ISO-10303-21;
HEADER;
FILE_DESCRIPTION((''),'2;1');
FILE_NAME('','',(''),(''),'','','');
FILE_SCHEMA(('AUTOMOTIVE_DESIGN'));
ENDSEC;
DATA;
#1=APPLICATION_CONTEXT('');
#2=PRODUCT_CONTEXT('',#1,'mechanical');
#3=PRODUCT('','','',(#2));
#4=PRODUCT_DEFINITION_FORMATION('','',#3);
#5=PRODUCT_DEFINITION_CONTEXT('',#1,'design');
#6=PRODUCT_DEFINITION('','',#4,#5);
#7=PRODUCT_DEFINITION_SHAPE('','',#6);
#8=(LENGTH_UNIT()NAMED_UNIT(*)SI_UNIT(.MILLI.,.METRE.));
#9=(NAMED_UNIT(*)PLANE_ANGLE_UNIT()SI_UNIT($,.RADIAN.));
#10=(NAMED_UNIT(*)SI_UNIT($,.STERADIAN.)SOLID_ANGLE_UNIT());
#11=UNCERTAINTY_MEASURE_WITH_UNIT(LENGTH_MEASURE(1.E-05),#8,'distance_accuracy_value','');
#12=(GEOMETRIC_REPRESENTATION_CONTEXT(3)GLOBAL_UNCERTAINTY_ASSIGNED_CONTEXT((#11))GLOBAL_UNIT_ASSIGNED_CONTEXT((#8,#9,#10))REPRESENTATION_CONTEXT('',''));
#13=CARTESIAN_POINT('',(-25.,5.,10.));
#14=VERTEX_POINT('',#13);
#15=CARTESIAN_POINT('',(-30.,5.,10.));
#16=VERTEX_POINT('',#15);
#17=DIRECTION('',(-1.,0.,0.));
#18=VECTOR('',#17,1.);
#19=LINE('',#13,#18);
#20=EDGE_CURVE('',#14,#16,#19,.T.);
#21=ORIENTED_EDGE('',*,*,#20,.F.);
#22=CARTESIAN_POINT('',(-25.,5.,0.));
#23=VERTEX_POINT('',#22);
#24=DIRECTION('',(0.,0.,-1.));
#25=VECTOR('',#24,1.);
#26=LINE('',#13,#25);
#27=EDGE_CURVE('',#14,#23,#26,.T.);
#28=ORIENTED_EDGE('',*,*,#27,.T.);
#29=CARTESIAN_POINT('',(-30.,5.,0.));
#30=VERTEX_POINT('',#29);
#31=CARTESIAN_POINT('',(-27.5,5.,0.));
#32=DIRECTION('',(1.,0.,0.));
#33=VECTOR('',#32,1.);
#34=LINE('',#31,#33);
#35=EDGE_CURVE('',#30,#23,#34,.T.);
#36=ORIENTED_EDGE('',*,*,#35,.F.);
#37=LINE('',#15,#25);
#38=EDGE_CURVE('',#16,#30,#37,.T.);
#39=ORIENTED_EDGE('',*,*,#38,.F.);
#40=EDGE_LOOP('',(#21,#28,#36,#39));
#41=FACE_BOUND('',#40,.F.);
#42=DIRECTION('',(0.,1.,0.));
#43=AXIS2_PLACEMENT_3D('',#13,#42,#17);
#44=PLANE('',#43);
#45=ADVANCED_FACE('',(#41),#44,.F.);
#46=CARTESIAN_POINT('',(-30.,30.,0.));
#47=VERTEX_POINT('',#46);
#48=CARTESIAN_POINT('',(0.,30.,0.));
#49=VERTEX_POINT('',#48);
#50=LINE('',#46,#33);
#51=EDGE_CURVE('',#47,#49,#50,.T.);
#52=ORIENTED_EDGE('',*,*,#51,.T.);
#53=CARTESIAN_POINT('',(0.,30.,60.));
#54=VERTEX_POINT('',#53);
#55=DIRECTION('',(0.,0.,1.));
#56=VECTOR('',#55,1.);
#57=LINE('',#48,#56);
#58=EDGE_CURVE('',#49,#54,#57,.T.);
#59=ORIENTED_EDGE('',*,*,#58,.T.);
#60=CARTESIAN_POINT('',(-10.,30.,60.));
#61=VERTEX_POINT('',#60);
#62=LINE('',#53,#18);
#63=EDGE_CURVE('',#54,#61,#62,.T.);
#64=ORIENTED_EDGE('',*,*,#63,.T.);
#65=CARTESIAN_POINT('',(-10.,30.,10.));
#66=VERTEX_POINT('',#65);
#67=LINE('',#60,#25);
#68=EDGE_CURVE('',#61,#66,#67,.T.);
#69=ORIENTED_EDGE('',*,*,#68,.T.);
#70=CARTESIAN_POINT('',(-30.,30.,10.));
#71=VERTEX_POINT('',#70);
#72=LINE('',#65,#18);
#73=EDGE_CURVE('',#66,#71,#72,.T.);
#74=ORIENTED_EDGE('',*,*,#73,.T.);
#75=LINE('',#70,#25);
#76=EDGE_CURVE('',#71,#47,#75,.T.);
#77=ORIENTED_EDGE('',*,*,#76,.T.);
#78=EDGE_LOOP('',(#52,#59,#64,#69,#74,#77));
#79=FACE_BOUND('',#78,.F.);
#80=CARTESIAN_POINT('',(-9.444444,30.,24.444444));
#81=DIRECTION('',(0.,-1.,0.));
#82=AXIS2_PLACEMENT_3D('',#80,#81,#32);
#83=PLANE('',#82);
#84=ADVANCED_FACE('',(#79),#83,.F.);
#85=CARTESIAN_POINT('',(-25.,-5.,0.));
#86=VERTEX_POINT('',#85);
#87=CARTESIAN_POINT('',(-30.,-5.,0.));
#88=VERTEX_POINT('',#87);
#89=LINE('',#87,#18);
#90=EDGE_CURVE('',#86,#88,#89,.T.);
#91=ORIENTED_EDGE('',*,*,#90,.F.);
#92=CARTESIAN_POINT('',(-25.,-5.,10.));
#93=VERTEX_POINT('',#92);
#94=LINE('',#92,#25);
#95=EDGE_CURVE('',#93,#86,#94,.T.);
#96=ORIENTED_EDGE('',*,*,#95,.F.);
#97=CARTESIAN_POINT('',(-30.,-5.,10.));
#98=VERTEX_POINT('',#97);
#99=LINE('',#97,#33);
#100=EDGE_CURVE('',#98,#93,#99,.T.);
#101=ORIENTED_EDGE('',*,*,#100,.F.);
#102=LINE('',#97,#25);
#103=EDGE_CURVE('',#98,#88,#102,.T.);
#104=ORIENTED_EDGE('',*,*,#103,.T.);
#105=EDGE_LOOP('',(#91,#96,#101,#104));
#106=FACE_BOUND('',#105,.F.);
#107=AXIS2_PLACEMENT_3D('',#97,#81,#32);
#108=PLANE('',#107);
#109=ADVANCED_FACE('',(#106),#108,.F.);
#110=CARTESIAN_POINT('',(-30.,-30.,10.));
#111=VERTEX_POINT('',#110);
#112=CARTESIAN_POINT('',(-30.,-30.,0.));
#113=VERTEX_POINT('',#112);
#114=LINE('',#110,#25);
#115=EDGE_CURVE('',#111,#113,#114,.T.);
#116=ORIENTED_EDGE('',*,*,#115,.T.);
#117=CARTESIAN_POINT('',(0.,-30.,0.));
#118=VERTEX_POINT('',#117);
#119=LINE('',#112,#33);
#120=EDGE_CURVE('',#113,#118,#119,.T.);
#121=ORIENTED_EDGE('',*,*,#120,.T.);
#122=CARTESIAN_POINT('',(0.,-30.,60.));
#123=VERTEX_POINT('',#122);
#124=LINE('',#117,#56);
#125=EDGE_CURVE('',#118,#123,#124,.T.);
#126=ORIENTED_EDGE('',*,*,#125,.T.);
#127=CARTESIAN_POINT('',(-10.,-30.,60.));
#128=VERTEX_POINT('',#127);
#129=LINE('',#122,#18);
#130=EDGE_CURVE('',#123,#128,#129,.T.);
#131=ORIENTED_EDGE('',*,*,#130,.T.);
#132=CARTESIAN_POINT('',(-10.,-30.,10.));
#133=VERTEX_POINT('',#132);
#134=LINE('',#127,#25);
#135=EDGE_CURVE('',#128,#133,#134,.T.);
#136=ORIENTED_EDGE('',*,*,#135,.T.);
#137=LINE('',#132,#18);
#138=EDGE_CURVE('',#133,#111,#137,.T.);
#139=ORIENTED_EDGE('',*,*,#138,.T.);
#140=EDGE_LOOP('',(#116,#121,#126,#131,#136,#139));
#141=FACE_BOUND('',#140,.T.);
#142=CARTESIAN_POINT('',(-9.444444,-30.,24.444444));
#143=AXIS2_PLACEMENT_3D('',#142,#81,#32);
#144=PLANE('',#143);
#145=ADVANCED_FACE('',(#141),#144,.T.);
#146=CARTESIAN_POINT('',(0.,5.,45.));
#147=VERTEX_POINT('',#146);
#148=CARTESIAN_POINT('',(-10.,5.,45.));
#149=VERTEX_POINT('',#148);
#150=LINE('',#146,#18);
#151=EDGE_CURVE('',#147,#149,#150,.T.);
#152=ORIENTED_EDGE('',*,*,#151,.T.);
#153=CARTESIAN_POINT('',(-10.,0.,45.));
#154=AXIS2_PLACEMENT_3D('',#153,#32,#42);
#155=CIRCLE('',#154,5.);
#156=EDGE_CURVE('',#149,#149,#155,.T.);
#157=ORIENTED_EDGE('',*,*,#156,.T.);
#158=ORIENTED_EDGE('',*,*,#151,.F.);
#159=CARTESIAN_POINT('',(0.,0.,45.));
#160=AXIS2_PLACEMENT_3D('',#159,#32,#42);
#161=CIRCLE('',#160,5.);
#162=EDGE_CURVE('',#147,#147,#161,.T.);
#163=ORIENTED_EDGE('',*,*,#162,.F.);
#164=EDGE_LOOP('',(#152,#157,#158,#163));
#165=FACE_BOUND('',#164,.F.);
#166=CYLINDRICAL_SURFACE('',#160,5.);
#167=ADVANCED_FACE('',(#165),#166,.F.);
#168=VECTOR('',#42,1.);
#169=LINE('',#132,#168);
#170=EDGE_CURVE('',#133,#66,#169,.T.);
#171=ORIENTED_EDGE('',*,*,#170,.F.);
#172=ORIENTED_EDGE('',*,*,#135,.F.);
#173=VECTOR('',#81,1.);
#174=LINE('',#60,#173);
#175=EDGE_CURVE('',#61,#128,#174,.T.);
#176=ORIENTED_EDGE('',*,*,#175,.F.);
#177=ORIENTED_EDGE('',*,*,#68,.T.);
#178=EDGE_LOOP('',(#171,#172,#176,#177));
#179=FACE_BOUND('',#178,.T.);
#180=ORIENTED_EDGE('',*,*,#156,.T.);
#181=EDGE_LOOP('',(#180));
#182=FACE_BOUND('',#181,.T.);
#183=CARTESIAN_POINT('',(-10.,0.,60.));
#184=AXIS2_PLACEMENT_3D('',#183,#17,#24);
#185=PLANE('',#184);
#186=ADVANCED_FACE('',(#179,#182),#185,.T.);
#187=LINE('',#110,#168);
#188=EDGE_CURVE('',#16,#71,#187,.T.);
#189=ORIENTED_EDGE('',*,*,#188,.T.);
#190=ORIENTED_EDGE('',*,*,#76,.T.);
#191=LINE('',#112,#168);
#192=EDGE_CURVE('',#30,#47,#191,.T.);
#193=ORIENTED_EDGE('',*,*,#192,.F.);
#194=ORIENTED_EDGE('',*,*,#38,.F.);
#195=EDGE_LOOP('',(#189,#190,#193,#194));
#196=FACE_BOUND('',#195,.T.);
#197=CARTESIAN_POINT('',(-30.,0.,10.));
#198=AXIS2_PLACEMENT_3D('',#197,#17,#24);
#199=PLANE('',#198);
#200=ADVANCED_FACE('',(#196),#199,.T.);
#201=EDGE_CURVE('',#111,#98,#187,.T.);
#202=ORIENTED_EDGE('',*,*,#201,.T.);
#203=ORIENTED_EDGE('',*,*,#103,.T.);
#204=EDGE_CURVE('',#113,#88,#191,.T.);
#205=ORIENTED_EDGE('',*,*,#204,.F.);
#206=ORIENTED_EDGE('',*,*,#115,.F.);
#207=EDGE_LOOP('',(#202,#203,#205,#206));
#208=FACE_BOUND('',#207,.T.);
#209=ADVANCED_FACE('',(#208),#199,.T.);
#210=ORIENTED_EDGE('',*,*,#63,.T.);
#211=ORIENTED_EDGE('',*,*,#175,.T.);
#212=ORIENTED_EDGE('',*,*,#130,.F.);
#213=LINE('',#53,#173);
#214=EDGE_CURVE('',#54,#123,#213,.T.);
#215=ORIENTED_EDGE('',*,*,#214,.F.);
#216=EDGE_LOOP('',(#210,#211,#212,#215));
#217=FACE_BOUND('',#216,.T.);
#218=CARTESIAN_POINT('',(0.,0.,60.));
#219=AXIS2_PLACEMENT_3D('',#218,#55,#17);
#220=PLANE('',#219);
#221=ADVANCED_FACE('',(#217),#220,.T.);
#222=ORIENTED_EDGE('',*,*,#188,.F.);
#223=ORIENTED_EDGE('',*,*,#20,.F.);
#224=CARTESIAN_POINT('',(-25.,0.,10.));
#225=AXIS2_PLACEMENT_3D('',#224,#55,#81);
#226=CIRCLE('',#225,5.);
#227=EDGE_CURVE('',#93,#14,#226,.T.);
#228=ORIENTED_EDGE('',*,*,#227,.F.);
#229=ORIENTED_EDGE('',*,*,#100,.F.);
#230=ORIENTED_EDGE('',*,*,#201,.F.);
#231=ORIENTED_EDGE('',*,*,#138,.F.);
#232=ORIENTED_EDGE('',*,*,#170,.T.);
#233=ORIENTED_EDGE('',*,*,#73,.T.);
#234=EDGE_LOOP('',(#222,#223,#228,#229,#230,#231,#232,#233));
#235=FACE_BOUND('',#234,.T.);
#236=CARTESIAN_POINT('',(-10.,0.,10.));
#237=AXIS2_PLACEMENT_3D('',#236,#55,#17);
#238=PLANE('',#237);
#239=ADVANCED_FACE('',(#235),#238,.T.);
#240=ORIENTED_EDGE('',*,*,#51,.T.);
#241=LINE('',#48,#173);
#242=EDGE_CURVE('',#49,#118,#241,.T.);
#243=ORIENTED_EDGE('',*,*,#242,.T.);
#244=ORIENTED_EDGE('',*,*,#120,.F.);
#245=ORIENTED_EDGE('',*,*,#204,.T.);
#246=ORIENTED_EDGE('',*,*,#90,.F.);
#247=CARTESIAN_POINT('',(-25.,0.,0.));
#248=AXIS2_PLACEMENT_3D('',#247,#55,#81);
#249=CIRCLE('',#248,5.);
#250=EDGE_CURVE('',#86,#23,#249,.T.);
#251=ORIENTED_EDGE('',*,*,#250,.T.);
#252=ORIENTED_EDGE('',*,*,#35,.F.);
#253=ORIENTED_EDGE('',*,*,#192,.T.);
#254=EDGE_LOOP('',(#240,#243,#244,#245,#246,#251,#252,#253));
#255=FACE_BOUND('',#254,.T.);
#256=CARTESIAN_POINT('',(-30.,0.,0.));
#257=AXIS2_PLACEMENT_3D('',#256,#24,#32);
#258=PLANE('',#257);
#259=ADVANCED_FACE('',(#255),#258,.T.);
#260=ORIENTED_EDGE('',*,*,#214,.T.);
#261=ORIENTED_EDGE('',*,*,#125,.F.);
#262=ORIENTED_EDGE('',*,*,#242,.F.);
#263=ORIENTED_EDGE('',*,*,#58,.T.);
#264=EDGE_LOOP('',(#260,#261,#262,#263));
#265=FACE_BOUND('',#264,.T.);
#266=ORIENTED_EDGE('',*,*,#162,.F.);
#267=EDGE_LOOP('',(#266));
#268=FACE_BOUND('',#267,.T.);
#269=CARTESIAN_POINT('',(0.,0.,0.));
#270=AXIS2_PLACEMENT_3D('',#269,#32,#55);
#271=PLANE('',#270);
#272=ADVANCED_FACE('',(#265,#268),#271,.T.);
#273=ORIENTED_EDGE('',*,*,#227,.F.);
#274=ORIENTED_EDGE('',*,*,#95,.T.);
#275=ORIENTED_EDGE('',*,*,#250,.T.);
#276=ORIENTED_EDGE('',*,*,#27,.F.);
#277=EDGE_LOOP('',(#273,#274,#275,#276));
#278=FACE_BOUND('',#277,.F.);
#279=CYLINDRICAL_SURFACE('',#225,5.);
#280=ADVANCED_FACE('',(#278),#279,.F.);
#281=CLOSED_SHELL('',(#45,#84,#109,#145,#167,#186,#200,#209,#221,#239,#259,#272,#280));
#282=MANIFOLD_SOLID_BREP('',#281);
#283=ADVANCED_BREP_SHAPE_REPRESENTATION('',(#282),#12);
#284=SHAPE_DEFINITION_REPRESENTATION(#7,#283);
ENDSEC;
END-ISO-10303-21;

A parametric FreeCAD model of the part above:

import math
import FreeCAD as App
import Part
import Sketcher
from FreeCAD import Vector

doc = App.newDocument("Part")
body = doc.addObject("PartDesign::Body", "Body")

sketch1 = body.newObject("Sketcher::SketchObject", "Sketch")
sketch1.AttachmentSupport = (doc.getObject("XZ_Plane"), [""])
sketch1.MapMode = "FlatFace"
sketch1.addGeometry(Part.LineSegment(Vector(-30, 0, 0), Vector(0, 0, 0)), False)
sketch1.addGeometry(Part.LineSegment(Vector(0, 0, 0), Vector(0, 60, 0)), False)
sketch1.addGeometry(Part.LineSegment(Vector(0, 60, 0), Vector(-10, 60, 0)), False)
sketch1.addGeometry(Part.LineSegment(Vector(-10, 60, 0), Vector(-10, 10, 0)), False)
sketch1.addGeometry(Part.LineSegment(Vector(-10, 10, 0), Vector(-30, 10, 0)), False)
sketch1.addGeometry(Part.LineSegment(Vector(-30, 10, 0), Vector(-30, 0, 0)), False)
sketch1.addConstraint(Sketcher.Constraint("Coincident", 0, 2, 1, 1))
sketch1.addConstraint(Sketcher.Constraint("Coincident", 1, 2, 2, 1))
sketch1.addConstraint(Sketcher.Constraint("Coincident", 2, 2, 3, 1))
sketch1.addConstraint(Sketcher.Constraint("Coincident", 3, 2, 4, 1))
sketch1.addConstraint(Sketcher.Constraint("Coincident", 4, 2, 5, 1))
sketch1.addConstraint(Sketcher.Constraint("Coincident", 5, 2, 0, 1))
sketch1.addConstraint(Sketcher.Constraint("Horizontal", 0))
sketch1.addConstraint(Sketcher.Constraint("Vertical", 1))
sketch1.addConstraint(Sketcher.Constraint("Horizontal", 2))
sketch1.addConstraint(Sketcher.Constraint("Vertical", 3))
sketch1.addConstraint(Sketcher.Constraint("Horizontal", 4))
sketch1.addConstraint(Sketcher.Constraint("Vertical", 5))
sketch1.addConstraint(Sketcher.Constraint("Coincident", 0, 2, -1, 1))
sketch1.addConstraint(Sketcher.Constraint("Equal", 2, 5))
sketch1.addConstraint(Sketcher.Constraint("DistanceX", 0, 1, 0, 2, 30.0))
sketch1.addConstraint(Sketcher.Constraint("DistanceX", 2, 2, 2, 1, 10.0))
sketch1.addConstraint(Sketcher.Constraint("DistanceY", 1, 1, 1, 2, 60.0))
pad1 = body.newObject("PartDesign::Pad", "Pad")
pad1.Profile = sketch1
pad1.Length = 60
pad1.Midplane = True

sketch2 = body.newObject("Sketcher::SketchObject", "Sketch001")
sketch2.AttachmentSupport = (doc.getObject("YZ_Plane"), [""])
sketch2.MapMode = "FlatFace"
sketch2.addGeometry(Part.Circle(Vector(0, 45, 0), Vector(0, 0, 1), 5), False)
sketch2.addConstraint(Sketcher.Constraint("PointOnObject", 0, 3, -2))
sketch2.addConstraint(Sketcher.Constraint("Diameter", 0, 10.0))
sketch2.addConstraint(Sketcher.Constraint("DistanceY", -1, 1, 0, 3, 45.0))
pocket1 = body.newObject("PartDesign::Pocket", "Pocket")
pocket1.Profile = sketch2
pocket1.Length = 28.448

sketch3 = body.newObject("Sketcher::SketchObject", "Sketch002")
sketch3.AttachmentSupport = (doc.getObject("XY_Plane"), [""])
sketch3.MapMode = "FlatFace"
sketch3.AttachmentOffset = App.Placement(Vector(0, 0, 10), App.Rotation())
sketch3.addGeometry(Part.LineSegment(Vector(-25, 5, 0), Vector(-30, 5, 0)), False)
sketch3.addGeometry(Part.LineSegment(Vector(-30, 5, 0), Vector(-30, -5, 0)), False)
sketch3.addGeometry(Part.LineSegment(Vector(-30, -5, 0), Vector(-25, -5, 0)), False)
sketch3.addGeometry(Part.ArcOfCircle(Part.Circle(Vector(-25, 0, 0), Vector(0, 0, 1), 5), math.radians(-90), math.radians(90)), False)
sketch3.addConstraint(Sketcher.Constraint("Coincident", 0, 2, 1, 1))
sketch3.addConstraint(Sketcher.Constraint("Coincident", 1, 2, 2, 1))
sketch3.addConstraint(Sketcher.Constraint("Tangent", 2, 2, 3, 1))
sketch3.addConstraint(Sketcher.Constraint("Tangent", 3, 2, 0, 1))
sketch3.addConstraint(Sketcher.Constraint("Horizontal", 0))
sketch3.addConstraint(Sketcher.Constraint("Vertical", 1))
sketch3.addConstraint(Sketcher.Constraint("Horizontal", 2))
sketch3.addConstraint(Sketcher.Constraint("PointOnObject", 3, 3, -1))
sketch3.addConstraint(Sketcher.Constraint("Radius", 3, 5.0))
sketch3.addConstraint(Sketcher.Constraint("DistanceX", 0, 2, 0, 1, 5.0))
sketch3.addConstraint(Sketcher.Constraint("DistanceX", 3, 3, -1, 1, 25.0))
pocket2 = body.newObject("PartDesign::Pocket", "Pocket001")
pocket2.Profile = sketch3
pocket2.Length = 25.4

doc.recompute()
